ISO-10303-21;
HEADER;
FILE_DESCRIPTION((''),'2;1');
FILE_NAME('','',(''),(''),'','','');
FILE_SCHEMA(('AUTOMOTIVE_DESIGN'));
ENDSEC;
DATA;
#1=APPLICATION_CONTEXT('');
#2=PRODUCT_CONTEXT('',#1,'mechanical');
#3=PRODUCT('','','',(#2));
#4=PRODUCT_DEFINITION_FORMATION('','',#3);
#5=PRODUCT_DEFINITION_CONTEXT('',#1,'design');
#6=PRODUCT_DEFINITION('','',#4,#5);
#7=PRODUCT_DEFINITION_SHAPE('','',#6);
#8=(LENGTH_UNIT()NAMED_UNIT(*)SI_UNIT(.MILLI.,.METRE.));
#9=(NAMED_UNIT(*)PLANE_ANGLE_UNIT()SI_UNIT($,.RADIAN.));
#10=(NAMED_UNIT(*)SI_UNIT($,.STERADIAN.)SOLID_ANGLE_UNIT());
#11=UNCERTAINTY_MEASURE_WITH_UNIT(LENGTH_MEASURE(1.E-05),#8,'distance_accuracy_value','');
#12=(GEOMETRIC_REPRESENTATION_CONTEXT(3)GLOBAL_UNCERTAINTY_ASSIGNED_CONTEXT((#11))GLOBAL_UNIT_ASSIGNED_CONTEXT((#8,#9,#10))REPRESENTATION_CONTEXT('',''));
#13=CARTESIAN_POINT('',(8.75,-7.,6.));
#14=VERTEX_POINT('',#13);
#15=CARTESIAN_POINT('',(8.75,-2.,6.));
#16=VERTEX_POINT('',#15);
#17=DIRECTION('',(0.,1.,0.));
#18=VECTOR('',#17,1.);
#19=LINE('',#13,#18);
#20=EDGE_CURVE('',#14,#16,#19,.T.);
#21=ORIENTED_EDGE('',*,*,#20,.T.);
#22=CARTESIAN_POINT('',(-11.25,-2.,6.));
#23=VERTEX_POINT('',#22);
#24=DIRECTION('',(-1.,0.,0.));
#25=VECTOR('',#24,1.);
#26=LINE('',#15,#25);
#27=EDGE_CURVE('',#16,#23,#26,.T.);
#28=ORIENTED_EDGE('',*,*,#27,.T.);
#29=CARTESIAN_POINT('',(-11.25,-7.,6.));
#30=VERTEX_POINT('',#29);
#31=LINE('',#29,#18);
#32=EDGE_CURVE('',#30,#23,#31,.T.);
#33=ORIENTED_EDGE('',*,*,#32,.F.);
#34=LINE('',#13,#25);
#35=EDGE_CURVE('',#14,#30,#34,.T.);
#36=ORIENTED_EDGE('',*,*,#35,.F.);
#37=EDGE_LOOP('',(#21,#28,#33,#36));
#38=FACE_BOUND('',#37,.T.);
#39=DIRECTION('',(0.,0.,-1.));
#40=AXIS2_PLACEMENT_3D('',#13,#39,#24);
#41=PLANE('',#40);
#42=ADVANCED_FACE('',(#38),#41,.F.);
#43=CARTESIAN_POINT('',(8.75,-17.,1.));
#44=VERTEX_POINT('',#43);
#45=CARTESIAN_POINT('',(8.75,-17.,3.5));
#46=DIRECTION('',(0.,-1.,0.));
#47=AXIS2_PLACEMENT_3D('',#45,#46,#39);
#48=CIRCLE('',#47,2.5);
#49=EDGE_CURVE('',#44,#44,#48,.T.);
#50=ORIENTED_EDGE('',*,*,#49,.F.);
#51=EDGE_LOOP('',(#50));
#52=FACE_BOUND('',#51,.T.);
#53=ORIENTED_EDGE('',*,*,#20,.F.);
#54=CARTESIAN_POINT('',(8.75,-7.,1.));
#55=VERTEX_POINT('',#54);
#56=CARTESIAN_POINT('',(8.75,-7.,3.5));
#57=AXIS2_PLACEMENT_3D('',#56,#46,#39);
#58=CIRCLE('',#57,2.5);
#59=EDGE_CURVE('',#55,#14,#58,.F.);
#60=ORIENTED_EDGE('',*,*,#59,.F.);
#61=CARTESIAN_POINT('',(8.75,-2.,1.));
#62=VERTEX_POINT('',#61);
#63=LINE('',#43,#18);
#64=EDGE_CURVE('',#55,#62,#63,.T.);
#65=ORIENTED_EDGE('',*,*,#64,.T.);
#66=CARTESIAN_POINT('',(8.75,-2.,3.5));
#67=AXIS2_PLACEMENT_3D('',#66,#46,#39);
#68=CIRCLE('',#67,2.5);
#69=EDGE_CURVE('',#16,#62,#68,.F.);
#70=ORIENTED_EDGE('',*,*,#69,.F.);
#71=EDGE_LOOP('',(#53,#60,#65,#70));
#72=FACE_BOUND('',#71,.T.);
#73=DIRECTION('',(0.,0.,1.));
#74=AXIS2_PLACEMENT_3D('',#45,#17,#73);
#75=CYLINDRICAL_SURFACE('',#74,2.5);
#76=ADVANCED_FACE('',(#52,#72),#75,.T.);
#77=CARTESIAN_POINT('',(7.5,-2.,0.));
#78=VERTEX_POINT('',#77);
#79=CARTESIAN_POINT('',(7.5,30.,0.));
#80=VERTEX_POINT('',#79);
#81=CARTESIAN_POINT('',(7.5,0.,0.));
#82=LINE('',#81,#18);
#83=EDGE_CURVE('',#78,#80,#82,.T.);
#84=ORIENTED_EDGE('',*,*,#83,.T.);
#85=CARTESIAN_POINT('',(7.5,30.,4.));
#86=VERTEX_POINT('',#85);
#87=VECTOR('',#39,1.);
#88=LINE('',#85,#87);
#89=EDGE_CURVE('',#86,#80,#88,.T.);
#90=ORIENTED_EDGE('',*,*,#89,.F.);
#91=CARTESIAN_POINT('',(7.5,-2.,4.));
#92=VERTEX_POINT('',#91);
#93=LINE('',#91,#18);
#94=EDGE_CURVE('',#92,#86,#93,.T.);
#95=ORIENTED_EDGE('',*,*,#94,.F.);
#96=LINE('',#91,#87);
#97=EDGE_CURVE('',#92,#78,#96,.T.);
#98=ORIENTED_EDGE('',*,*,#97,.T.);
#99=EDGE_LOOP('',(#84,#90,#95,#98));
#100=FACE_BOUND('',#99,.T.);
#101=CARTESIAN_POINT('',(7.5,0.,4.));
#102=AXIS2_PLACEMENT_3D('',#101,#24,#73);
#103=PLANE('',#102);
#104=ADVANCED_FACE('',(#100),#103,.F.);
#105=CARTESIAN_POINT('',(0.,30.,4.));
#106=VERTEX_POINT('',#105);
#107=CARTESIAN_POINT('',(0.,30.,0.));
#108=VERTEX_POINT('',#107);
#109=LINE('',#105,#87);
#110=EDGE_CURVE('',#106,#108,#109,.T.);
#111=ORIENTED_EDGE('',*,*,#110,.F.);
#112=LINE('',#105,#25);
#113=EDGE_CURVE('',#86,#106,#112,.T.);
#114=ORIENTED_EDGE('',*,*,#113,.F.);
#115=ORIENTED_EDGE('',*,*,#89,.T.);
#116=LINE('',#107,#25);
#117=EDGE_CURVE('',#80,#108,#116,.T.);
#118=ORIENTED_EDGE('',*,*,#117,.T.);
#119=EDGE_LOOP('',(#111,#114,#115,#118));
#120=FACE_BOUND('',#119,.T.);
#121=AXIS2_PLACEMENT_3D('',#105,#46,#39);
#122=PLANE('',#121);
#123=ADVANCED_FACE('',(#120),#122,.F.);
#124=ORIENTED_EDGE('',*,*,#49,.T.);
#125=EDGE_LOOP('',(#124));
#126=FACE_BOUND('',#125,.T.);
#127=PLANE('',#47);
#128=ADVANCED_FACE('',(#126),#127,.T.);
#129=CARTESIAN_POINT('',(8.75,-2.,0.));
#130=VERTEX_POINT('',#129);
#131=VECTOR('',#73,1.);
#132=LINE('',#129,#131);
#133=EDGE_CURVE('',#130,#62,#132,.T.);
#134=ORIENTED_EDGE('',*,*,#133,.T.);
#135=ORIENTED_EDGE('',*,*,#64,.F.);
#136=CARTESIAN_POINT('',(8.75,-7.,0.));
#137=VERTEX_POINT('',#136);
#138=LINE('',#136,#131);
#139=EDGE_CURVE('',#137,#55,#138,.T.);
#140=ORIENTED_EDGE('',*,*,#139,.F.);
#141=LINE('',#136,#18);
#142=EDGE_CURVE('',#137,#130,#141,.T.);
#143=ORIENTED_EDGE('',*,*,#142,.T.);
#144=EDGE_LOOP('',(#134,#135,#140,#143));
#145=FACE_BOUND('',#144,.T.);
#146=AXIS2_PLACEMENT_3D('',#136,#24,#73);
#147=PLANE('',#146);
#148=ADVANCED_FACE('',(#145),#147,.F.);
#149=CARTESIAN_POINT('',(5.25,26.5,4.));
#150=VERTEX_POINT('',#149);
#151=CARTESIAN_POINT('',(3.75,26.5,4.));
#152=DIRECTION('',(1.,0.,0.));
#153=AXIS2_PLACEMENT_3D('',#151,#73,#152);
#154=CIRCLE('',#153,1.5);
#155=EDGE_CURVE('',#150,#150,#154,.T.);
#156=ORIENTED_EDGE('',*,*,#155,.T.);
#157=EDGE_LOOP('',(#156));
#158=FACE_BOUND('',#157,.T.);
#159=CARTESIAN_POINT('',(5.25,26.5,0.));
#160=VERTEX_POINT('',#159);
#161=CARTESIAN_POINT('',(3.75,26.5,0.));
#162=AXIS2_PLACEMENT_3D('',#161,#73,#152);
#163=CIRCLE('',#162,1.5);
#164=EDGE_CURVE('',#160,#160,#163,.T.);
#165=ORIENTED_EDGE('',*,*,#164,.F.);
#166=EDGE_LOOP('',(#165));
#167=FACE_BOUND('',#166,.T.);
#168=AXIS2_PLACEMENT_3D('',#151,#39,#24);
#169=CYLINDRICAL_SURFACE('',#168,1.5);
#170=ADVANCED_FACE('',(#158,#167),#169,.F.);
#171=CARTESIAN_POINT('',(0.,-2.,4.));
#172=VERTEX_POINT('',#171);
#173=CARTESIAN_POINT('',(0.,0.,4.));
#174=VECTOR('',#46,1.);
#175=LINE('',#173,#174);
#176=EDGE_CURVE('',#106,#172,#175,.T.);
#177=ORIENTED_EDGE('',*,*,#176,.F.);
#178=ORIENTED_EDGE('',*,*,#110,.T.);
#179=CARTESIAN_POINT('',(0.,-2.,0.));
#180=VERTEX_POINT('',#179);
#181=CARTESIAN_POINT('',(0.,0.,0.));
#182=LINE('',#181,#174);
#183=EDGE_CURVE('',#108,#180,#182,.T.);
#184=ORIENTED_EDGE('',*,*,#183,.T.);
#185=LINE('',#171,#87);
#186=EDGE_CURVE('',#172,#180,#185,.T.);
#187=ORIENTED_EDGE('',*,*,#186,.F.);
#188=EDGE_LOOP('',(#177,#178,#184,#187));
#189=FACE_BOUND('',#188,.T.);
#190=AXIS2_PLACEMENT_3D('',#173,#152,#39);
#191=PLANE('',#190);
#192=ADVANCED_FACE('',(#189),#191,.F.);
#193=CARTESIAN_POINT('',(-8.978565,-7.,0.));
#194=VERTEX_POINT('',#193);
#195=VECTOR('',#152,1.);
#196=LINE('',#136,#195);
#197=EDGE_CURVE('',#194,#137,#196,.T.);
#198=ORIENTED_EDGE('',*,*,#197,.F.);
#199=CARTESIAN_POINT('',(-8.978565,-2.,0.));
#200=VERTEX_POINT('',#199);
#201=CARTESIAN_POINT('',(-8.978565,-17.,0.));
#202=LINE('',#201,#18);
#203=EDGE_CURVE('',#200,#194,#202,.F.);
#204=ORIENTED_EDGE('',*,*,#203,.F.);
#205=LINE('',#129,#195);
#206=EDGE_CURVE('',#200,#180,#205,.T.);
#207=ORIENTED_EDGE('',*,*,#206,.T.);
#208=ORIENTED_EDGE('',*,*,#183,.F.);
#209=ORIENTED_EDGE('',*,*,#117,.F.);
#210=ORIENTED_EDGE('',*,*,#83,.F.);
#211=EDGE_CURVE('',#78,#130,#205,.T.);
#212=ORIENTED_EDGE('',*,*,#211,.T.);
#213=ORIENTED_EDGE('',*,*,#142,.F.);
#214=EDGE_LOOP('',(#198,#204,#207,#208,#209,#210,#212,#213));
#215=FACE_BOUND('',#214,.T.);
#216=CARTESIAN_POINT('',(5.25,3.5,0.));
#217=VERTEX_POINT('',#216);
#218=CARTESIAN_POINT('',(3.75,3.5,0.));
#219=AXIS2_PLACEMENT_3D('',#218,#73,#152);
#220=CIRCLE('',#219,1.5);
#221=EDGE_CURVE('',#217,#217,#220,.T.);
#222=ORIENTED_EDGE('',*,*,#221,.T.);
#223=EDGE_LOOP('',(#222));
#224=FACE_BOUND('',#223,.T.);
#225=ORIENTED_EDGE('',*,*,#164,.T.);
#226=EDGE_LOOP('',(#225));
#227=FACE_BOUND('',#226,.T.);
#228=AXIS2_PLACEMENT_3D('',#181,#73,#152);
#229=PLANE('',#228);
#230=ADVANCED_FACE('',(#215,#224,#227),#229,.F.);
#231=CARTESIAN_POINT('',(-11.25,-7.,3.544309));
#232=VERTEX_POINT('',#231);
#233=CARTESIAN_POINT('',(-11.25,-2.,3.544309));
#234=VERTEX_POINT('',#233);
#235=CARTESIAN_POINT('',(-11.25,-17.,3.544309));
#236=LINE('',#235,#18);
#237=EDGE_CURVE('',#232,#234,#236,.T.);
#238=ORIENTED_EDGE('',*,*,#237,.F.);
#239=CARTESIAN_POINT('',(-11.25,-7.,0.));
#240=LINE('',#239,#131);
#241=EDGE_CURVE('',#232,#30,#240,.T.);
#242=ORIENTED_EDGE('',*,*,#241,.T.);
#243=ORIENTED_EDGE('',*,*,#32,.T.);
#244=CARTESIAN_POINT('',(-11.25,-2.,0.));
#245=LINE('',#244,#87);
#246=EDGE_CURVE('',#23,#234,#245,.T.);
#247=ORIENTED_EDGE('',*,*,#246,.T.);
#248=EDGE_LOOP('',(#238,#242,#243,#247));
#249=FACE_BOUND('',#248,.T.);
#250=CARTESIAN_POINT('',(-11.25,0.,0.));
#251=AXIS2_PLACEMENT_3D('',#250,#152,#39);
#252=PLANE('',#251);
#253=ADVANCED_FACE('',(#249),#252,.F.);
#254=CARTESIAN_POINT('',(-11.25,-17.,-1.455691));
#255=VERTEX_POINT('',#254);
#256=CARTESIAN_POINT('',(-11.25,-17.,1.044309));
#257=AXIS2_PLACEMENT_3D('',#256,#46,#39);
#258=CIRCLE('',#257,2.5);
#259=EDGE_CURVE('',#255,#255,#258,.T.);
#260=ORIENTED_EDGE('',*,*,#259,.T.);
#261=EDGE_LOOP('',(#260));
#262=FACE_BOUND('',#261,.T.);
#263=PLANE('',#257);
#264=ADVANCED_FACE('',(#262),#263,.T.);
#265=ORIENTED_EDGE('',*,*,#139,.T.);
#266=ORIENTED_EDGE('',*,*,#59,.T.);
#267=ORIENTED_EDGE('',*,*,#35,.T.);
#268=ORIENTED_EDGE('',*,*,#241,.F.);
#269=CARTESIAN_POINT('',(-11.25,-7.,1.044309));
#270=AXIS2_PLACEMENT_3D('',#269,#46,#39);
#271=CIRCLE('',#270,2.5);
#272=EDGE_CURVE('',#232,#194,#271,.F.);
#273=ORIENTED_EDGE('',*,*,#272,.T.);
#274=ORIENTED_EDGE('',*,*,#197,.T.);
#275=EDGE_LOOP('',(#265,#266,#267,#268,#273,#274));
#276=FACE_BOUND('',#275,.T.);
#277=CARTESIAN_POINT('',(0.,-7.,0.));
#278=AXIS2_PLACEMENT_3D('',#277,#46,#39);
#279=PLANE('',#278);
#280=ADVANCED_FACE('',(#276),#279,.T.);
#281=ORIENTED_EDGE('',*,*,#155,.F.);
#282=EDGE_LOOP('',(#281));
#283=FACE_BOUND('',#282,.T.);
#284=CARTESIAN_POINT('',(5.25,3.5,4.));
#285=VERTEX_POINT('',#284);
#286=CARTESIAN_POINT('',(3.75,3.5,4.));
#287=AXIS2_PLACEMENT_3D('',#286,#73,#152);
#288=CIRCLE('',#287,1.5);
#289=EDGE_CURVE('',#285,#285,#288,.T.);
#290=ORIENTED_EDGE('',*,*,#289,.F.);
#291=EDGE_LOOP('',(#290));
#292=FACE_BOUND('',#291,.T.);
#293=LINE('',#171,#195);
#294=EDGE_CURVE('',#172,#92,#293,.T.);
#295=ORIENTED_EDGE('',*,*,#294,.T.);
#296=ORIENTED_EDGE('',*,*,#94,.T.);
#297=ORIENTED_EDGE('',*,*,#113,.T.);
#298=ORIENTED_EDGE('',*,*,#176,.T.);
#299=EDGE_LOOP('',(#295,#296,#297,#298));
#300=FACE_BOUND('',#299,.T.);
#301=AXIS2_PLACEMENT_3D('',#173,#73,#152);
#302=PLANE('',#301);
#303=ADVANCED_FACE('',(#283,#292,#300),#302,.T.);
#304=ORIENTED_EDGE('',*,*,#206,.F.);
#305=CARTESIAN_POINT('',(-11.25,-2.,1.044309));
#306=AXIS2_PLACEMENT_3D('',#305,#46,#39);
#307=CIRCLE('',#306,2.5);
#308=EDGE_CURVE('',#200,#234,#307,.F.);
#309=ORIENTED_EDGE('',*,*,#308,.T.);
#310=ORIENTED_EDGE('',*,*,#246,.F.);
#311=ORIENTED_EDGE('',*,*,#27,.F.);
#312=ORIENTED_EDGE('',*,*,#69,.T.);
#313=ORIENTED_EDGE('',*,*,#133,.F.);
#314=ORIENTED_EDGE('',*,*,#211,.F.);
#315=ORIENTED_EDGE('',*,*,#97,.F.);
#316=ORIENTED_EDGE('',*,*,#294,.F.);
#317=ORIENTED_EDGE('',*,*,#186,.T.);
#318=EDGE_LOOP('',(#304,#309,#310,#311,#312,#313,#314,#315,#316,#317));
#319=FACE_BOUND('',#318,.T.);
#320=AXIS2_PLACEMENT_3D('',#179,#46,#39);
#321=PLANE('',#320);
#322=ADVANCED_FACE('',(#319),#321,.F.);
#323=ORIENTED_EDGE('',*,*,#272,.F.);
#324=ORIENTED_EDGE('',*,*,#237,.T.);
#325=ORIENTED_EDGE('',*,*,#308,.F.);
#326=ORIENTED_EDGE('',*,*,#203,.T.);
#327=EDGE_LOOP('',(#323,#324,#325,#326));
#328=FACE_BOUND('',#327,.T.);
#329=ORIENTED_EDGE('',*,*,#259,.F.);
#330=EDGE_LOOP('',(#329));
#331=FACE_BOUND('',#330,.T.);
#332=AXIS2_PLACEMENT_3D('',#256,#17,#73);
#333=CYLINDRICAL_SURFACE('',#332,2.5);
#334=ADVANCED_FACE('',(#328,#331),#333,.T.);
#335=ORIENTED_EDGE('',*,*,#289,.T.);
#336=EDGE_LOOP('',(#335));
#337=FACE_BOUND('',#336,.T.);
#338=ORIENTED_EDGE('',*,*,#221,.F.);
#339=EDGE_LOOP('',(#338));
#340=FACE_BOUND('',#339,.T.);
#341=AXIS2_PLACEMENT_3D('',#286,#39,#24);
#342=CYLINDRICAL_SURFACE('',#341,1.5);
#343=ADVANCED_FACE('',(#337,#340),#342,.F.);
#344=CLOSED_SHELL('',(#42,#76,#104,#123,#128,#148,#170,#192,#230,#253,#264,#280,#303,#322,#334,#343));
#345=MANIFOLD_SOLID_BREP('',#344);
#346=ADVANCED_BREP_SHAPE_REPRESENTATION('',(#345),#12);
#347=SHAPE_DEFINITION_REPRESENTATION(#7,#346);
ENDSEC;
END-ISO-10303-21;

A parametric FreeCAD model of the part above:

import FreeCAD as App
import Part
import Sketcher
Q = App.Units.Quantity


def add_polygon(sketch, points):
    """Adds a closed chain of lines whose ends are joined by coincident constraints."""
    first, n = sketch.GeometryCount, len(points)
    for a, b in zip(points, points[1:] + points[:1]):
        sketch.addGeometry(Part.LineSegment(App.Vector(*a, 0), App.Vector(*b, 0)), False)
    for i in range(n):
        sketch.addConstraint(Sketcher.Constraint("Coincident", first + i, 2, first + (i + 1) % n, 1))

doc = App.newDocument("Part")
body = doc.addObject("PartDesign::Body", "Body")

# Sketch on XY plane
sketch1 = doc.addObject("Sketcher::SketchObject", "Sketch")
body.addObject(sketch1)
sketch1.AttachmentSupport = (doc.XY_Plane, [""])
sketch1.MapMode = "FlatFace"
add_polygon(sketch1, [(0, 30), (0, -2), (7.5, -2), (7.5, 30)])  # lines 0-3
sketch1.addGeometry(Part.Circle(App.Vector(3.75, 3.5, 0), App.Vector(0, 0, 1), 1.5), False)  # 4
sketch1.addGeometry(Part.Circle(App.Vector(3.75, 26.5, 0), App.Vector(0, 0, 1), 1.5), False)  # 5
sketch1.addConstraint([
    Sketcher.Constraint("Vertical", 0),
    Sketcher.Constraint("Horizontal", 1),
    Sketcher.Constraint("Vertical", 2),
    Sketcher.Constraint("Horizontal", 3),
    Sketcher.Constraint("Equal", 4, 5),
    Sketcher.Constraint("PointOnObject", 0, 2, -2),
    Sketcher.Constraint("Vertical", 4, 3, 5, 3),
    Sketcher.Constraint("Diameter", 4, Q("3 mm")),
    Sketcher.Constraint("DistanceY", 0, 2, 0, 1, Q("32 mm")),
    Sketcher.Constraint("DistanceX", 1, 1, 1, 2, Q("7.5 mm")),
    Sketcher.Constraint("DistanceY", 0, 2, -1, 1, Q("2 mm")),
    Sketcher.Constraint("DistanceY", 4, 3, 5, 3, Q("23 mm")),
    Sketcher.Constraint("DistanceY", -1, 1, 4, 3, Q("3.5 mm")),
    Sketcher.Constraint("DistanceX", -1, 1, 4, 3, Q("3.75 mm")),
])
pad1 = doc.addObject("PartDesign::Pad", "Pad")
body.addObject(pad1)
pad1.Profile = sketch1
pad1.Length = 4

# Sketch on XZ plane
sketch2 = doc.addObject("Sketcher::SketchObject", "Sketch001")
body.addObject(sketch2)
sketch2.AttachmentSupport = (doc.XZ_Plane, [""])
sketch2.MapMode = "FlatFace"
sketch2.AttachmentOffset = App.Placement(App.Vector(0, 0, 2), App.Rotation())
add_polygon(sketch2, [(-1.25, 6), (-1.25, 0), (8.75, 0), (8.75, 6)])  # lines 0-3
sketch2.addConstraint([
    Sketcher.Constraint("Vertical", 0),
    Sketcher.Constraint("Horizontal", 1),
    Sketcher.Constraint("Vertical", 2),
    Sketcher.Constraint("Horizontal", 3),
    Sketcher.Constraint("PointOnObject", 0, 2, -1),
    Sketcher.Constraint("DistanceX", 1, 1, 1, 2, Q("10 mm")),
    Sketcher.Constraint("DistanceY", 0, 2, 0, 1, Q("6 mm")),
    Sketcher.Constraint("DistanceX", 0, 2, -1, 1, Q("1.25 mm")),
])
pad2 = doc.addObject("PartDesign::Pad", "Pad001")
body.addObject(pad2)
pad2.Profile = sketch2
pad2.Length = 5

# Sketch on YZ plane
sketch3 = doc.addObject("Sketcher::SketchObject", "Sketch002")
body.addObject(sketch3)
sketch3.AttachmentSupport = (doc.YZ_Plane, [""])
sketch3.MapMode = "FlatFace"
sketch3.AttachmentOffset = App.Placement(App.Vector(0, 0, -1.25), App.Rotation())
add_polygon(sketch3, [(-2, 0), (-7, 0), (-7, 6), (-2, 6)])  # lines 0-3
sketch3.addConstraint([
    Sketcher.Constraint("Horizontal", 0),
    Sketcher.Constraint("Vertical", 1),
    Sketcher.Constraint("Horizontal", 2),
    Sketcher.Constraint("Vertical", 3),
    Sketcher.Constraint("PointOnObject", 0, 2, -1),
    Sketcher.Constraint("DistanceX", 0, 2, 0, 1, Q("5 mm")),
    Sketcher.Constraint("DistanceY", 1, 1, 1, 2, Q("6 mm")),
    Sketcher.Constraint("DistanceX", 0, 2, -1, 1, Q("7 mm")),
])
pad3 = doc.addObject("PartDesign::Pad", "Pad002")
body.addObject(pad3)
pad3.Profile = sketch3
pad3.Length = 10
pad3.Reversed = True

# Sketch on XZ plane
sketch4 = doc.addObject("Sketcher::SketchObject", "Sketch003")
body.addObject(sketch4)
sketch4.AttachmentSupport = (doc.XZ_Plane, [""])
sketch4.MapMode = "FlatFace"
sketch4.AttachmentOffset = App.Placement(App.Vector(0, 0, 7), App.Rotation())
sketch4.addGeometry([
    Part.Circle(App.Vector(8.75, 3.5, 0), App.Vector(0, 0, 1), 2.5),
    Part.Circle(App.Vector(-11.25, 1.044309, 0), App.Vector(0, 0, 1), 2.5),
], False)
sketch4.addConstraint([
    Sketcher.Constraint("Equal", 0, 1),
    Sketcher.Constraint("Diameter", 0, Q("5 mm")),
    Sketcher.Constraint("DistanceX", 1, 3, 0, 3, Q("20 mm")),
    Sketcher.Constraint("DistanceY", -1, 1, 0, 3, Q("3.5 mm")),
    Sketcher.Constraint("DistanceX", -1, 1, 0, 3, Q("8.75 mm")),
    Sketcher.Constraint("DistanceY", -1, 1, 1, 3, Q("1.044309 mm")),
])
pad4 = doc.addObject("PartDesign::Pad", "Pad003")
body.addObject(pad4)
pad4.Profile = sketch4
pad4.Type = "TwoLengths"
pad4.Length = 10
pad4.Length2 = 5

doc.recompute()
